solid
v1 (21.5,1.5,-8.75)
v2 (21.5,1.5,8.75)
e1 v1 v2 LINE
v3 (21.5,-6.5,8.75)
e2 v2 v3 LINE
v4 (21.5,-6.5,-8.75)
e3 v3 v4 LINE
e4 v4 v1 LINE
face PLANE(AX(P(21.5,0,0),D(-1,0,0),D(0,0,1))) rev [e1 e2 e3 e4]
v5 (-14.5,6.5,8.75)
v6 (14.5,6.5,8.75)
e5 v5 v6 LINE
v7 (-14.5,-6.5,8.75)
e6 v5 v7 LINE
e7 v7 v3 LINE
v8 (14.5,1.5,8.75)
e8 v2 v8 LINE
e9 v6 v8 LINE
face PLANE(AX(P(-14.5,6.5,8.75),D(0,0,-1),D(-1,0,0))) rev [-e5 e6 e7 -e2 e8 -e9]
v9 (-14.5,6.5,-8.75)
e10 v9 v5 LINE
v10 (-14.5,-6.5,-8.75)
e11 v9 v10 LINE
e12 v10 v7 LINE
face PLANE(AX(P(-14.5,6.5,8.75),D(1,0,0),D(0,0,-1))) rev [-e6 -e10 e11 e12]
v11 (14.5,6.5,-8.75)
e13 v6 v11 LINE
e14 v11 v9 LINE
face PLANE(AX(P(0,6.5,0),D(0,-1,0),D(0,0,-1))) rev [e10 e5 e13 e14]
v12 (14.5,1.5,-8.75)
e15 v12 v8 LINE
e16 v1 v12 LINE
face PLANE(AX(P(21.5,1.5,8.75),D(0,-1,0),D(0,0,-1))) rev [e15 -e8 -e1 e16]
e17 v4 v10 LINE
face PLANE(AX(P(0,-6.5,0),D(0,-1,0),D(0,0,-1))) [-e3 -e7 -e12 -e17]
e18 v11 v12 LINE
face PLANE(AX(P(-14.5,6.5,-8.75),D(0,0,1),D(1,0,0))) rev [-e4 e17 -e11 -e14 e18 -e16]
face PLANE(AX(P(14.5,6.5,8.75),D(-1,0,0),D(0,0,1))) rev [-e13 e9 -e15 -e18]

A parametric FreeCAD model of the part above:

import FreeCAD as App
import Part
import Sketcher

V = App.Vector
Q = App.Units.Quantity

doc = App.newDocument("Part")
body = doc.addObject("PartDesign::Body", "Body")

# Sketch on XZ plane
sketch1 = doc.addObject("Sketcher::SketchObject", "Sketch")
body.addObject(sketch1)
sketch1.AttachmentSupport = (doc.XZ_Plane, [""])
sketch1.MapMode = "FlatFace"
sketch1.addGeometry([
    Part.LineSegment(V(-14, -9, 0), V(-14, 9, 0)),
    Part.LineSegment(V(-14, 9, 0), V(14, 9, 0)),
    Part.LineSegment(V(14, 9, 0), V(14, -9, 0)),
    Part.LineSegment(V(14, -9, 0), V(-14, -9, 0)),
], False)
sketch1.addConstraint([
    Sketcher.Constraint("Coincident", 0, 2, 1, 1),
    Sketcher.Constraint("Coincident", 1, 2, 2, 1),
    Sketcher.Constraint("Coincident", 2, 2, 3, 1),
    Sketcher.Constraint("Coincident", 3, 2, 0, 1),
    Sketcher.Constraint("Vertical", 0),
    Sketcher.Constraint("Horizontal", 1),
    Sketcher.Constraint("Vertical", 2),
    Sketcher.Constraint("Horizontal", 3),
    Sketcher.Constraint("Symmetric", 0, 2, 2, 2, -1, 1),
    Sketcher.Constraint("DistanceX", 1, 1, 1, 2, Q("29 mm")),
    Sketcher.Constraint("DistanceY", 0, 1, 0, 2, Q("17.5 mm")),
])
pad1 = doc.addObject("PartDesign::Pad", "Pad")
body.addObject(pad1)
pad1.Profile = sketch1
pad1.Length = 13
pad1.Midplane = True

# Sketch on YZ plane
sketch2 = doc.addObject("Sketcher::SketchObject", "Sketch001")
body.addObject(sketch2)
sketch2.AttachmentSupport = (doc.YZ_Plane, [""])
sketch2.MapMode = "FlatFace"
sketch2.AttachmentOffset = App.Placement(V(0, 0, 14.5), App.Rotation())
sketch2.addGeometry([
    Part.LineSegment(V(2, 9, 0), V(-6, 9, 0)),
    Part.LineSegment(V(-6, 9, 0), V(-6, -9, 0)),
    Part.LineSegment(V(-6, -9, 0), V(2, -9, 0)),
    Part.LineSegment(V(2, -9, 0), V(2, 9, 0)),
], False)
sketch2.addConstraint([
    Sketcher.Constraint("Coincident", 0, 2, 1, 1),
    Sketcher.Constraint("Coincident", 1, 2, 2, 1),
    Sketcher.Constraint("Coincident", 2, 2, 3, 1),
    Sketcher.Constraint("Coincident", 3, 2, 0, 1),
    Sketcher.Constraint("Horizontal", 0),
    Sketcher.Constraint("Vertical", 1),
    Sketcher.Constraint("Horizontal", 2),
    Sketcher.Constraint("Vertical", 3),
    Sketcher.Constraint("DistanceX", 0, 2, 0, 1, Q("8 mm")),
    Sketcher.Constraint("DistanceY", 1, 2, 1, 1, Q("17.5 mm")),
    Sketcher.Constraint("DistanceX", 0, 2, -1, 1, Q("6.5 mm")),
    Sketcher.Constraint("DistanceY", -1, 1, 0, 2, Q("8.75 mm")),
])
pad2 = doc.addObject("PartDesign::Pad", "Pad001")
body.addObject(pad2)
pad2.Profile = sketch2
pad2.Length = 7

doc.recompute()
